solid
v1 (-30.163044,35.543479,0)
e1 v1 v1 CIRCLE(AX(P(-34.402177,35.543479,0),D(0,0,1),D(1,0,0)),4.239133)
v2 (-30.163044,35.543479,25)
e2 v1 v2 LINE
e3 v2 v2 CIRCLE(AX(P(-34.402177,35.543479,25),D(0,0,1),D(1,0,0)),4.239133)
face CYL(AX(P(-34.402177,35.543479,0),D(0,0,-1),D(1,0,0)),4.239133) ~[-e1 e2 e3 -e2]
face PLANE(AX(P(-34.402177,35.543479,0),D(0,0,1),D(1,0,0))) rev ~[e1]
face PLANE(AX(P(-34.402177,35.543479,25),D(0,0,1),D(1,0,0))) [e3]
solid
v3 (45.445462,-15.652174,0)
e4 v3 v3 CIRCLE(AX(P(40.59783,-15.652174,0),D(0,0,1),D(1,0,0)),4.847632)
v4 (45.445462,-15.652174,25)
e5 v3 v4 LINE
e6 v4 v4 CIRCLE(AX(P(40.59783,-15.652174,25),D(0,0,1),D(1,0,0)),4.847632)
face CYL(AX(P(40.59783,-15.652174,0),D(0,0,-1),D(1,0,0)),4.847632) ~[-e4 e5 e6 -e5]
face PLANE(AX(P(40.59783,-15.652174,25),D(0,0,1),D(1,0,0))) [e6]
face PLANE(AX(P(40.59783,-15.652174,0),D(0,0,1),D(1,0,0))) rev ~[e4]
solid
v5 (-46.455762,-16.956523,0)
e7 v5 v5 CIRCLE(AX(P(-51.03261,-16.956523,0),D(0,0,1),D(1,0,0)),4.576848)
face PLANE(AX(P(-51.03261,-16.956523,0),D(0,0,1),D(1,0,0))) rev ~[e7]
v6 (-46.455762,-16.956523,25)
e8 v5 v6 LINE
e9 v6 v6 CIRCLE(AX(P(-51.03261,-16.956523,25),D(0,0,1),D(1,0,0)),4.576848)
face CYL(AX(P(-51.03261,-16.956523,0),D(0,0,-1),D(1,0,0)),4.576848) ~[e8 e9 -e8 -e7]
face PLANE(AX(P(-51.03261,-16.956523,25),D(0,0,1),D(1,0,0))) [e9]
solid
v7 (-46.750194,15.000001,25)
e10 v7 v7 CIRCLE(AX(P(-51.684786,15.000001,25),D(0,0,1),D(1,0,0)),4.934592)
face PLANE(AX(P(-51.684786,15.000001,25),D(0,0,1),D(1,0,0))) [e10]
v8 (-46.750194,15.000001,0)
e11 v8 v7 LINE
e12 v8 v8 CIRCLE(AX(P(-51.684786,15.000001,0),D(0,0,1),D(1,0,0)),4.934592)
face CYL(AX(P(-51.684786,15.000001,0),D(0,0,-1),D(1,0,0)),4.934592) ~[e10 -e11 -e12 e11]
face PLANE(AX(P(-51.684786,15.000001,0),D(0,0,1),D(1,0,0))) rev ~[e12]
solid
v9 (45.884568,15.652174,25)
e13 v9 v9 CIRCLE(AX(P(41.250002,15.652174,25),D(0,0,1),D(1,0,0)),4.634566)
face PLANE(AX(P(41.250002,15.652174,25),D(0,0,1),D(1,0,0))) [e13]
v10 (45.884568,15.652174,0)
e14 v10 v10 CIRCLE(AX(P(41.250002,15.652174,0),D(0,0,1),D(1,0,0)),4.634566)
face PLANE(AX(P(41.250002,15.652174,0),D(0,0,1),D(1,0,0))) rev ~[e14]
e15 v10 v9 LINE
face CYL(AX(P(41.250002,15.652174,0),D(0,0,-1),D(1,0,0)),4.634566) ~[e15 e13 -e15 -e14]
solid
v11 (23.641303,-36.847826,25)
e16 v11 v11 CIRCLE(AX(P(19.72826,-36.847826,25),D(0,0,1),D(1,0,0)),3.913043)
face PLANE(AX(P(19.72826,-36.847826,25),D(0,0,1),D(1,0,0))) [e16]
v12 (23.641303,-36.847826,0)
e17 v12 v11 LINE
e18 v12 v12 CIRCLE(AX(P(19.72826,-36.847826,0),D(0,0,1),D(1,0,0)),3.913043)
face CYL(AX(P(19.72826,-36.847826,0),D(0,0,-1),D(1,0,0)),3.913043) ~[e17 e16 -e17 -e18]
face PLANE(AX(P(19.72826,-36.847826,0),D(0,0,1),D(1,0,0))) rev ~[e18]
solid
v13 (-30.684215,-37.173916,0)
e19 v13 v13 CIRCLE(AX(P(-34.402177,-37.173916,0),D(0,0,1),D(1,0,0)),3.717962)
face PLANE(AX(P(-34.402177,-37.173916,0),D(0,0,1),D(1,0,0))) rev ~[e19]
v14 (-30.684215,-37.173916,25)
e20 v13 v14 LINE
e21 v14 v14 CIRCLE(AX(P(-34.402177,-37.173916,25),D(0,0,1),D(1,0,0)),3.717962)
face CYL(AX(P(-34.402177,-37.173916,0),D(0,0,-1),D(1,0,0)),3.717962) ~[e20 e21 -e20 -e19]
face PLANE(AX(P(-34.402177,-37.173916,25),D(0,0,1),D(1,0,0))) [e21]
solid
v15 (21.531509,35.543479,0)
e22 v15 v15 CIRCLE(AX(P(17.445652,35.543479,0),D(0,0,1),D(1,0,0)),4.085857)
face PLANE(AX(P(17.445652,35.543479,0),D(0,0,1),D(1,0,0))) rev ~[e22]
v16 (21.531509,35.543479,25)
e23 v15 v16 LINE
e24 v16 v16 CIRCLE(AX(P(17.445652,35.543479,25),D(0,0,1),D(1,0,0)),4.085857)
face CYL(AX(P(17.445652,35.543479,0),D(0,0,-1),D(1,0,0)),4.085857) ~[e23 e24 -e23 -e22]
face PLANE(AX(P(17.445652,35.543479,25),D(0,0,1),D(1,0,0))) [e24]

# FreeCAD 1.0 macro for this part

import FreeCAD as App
import Part
import Sketcher

V = App.Vector
Q = App.Units.Quantity

doc = App.newDocument("Part")
body = doc.addObject("PartDesign::Body", "Body")
body.AllowCompound = True

sketch1 = doc.addObject("Sketcher::SketchObject", "Sketch")
body.addObject(sketch1)
sketch1.AttachmentSupport = (doc.XY_Plane, [""])
sketch1.MapMode = "FlatFace"
sketch1.addGeometry([
    Part.Circle(V(-34.4, 35.5, 0), V(0, 0, 1), 4.2),
    Part.Circle(V(17.4, 35.5, 0), V(0, 0, 1), 4.1),
    Part.Circle(V(41.3, 15.7, 0), V(0, 0, 1), 4.6),
    Part.Circle(V(40.6, -15.7, 0), V(0, 0, 1), 4.8),
    Part.Circle(V(19.7, -36.8, 0), V(0, 0, 1), 3.9),
    Part.Circle(V(-34.4, -37.2, 0), V(0, 0, 1), 3.7),
    Part.Circle(V(-51, -17, 0), V(0, 0, 1), 4.6),
    Part.Circle(V(-51.7, 15, 0), V(0, 0, 1), 4.9),
], False)
sketch1.addConstraint([
    Sketcher.Constraint("Horizontal", 0, 3, 1, 3),
    Sketcher.Constraint("Vertical", 0, 3, 5, 3),
    Sketcher.Constraint("DistanceY", -1, 1, 7, 3, Q("15.000001 mm")),
    Sketcher.Constraint("DistanceY", 4, 3, 2, 3, Q("52.5 mm")),
    Sketcher.Constraint("DistanceY", 6, 3, 0, 3, Q("52.500002 mm")),
    Sketcher.Constraint("Diameter", 0, Q("8.478266 mm")),
    Sketcher.Constraint("Diameter", 1, Q("8.171714 mm")),
    Sketcher.Constraint("Diameter", 2, Q("9.269132 mm")),
    Sketcher.Constraint("Diameter", 3, Q("9.695264 mm")),
    Sketcher.Constraint("Diameter", 4, Q("7.826086 mm")),
    Sketcher.Constraint("Diameter", 5, Q("7.435924 mm")),
    Sketcher.Constraint("Diameter", 6, Q("9.153696 mm")),
    Sketcher.Constraint("Diameter", 7, Q("9.869184 mm")),
    Sketcher.Constraint("DistanceY", -1, 1, 0, 3, Q("35.543479 mm")),
    Sketcher.Constraint("DistanceX", -1, 1, 1, 3, Q("17.445652 mm")),
    Sketcher.Constraint("DistanceX", -1, 1, 3, 3, Q("40.59783 mm")),
    Sketcher.Constraint("DistanceX", -1, 1, 4, 3, Q("19.72826 mm")),
    Sketcher.Constraint("DistanceX", 6, 3, -1, 1, Q("51.03261 mm")),
    Sketcher.Constraint("DistanceX", 0, 3, 1, 3, Q("51.847829 mm")),
    Sketcher.Constraint("DistanceX", 1, 3, 2, 3, Q("23.80435 mm")),
    Sketcher.Constraint("DistanceY", 3, 3, 2, 3, Q("31.304348 mm")),
    Sketcher.Constraint("DistanceY", 5, 3, 4, 3, Q("0.32609 mm")),
    Sketcher.Constraint("DistanceY", 6, 3, 3, 3, Q("1.304349 mm")),
    Sketcher.Constraint("DistanceX", 7, 3, 0, 3, Q("17.282609 mm")),
])
pad1 = doc.addObject("PartDesign::Pad", "Pad")
body.addObject(pad1)
pad1.Profile = sketch1
pad1.Length = 25

doc.recompute()
